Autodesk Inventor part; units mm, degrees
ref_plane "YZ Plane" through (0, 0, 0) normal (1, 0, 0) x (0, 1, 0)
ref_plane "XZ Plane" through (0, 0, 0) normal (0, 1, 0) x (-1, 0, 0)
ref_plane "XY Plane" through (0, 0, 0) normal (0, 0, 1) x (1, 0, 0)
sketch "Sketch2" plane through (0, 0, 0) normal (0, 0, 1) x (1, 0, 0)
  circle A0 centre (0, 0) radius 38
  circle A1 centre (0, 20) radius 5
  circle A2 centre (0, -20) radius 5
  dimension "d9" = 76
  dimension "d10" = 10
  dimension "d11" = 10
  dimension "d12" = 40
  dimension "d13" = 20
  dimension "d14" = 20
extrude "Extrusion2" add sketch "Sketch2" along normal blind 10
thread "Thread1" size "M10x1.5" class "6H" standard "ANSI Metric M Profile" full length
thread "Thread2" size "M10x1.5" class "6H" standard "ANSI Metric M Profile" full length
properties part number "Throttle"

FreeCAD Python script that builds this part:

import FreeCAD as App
import Part
import Sketcher
Q = App.Units.Quantity

doc = App.newDocument("Part")
body = doc.addObject("PartDesign::Body", "Body")

# Sketch on XY plane
sketch1 = body.newObject("Sketcher::SketchObject", "Sketch")
sketch1.AttachmentSupport = (doc.getObject("XY_Plane"), [""])
sketch1.MapMode = "FlatFace"
sketch1.addGeometry([
    Part.Circle(App.Vector(0, 0, 0), App.Vector(0, 0, 1), 38),
    Part.Circle(App.Vector(0, -20, 0), App.Vector(0, 0, 1), 5),
    Part.Circle(App.Vector(0, 20, 0), App.Vector(0, 0, 1), 5),
], False)
sketch1.addConstraint([
    Sketcher.Constraint("Coincident", 0, 3, -1, 1),
    Sketcher.Constraint("Equal", 1, 2),
    Sketcher.Constraint("Symmetric", 1, 3, 2, 3, -1, 1),
    Sketcher.Constraint("PointOnObject", 1, 3, -2),
    Sketcher.Constraint("Diameter", 0, Q("76 mm")),
    Sketcher.Constraint("Diameter", 1, Q("10 mm")),
    Sketcher.Constraint("DistanceY", 1, 3, -1, 1, Q("20 mm")),
])
pad1 = body.newObject("PartDesign::Pad", "Pad")
pad1.Profile = sketch1
pad1.Length = 10

doc.recompute()
